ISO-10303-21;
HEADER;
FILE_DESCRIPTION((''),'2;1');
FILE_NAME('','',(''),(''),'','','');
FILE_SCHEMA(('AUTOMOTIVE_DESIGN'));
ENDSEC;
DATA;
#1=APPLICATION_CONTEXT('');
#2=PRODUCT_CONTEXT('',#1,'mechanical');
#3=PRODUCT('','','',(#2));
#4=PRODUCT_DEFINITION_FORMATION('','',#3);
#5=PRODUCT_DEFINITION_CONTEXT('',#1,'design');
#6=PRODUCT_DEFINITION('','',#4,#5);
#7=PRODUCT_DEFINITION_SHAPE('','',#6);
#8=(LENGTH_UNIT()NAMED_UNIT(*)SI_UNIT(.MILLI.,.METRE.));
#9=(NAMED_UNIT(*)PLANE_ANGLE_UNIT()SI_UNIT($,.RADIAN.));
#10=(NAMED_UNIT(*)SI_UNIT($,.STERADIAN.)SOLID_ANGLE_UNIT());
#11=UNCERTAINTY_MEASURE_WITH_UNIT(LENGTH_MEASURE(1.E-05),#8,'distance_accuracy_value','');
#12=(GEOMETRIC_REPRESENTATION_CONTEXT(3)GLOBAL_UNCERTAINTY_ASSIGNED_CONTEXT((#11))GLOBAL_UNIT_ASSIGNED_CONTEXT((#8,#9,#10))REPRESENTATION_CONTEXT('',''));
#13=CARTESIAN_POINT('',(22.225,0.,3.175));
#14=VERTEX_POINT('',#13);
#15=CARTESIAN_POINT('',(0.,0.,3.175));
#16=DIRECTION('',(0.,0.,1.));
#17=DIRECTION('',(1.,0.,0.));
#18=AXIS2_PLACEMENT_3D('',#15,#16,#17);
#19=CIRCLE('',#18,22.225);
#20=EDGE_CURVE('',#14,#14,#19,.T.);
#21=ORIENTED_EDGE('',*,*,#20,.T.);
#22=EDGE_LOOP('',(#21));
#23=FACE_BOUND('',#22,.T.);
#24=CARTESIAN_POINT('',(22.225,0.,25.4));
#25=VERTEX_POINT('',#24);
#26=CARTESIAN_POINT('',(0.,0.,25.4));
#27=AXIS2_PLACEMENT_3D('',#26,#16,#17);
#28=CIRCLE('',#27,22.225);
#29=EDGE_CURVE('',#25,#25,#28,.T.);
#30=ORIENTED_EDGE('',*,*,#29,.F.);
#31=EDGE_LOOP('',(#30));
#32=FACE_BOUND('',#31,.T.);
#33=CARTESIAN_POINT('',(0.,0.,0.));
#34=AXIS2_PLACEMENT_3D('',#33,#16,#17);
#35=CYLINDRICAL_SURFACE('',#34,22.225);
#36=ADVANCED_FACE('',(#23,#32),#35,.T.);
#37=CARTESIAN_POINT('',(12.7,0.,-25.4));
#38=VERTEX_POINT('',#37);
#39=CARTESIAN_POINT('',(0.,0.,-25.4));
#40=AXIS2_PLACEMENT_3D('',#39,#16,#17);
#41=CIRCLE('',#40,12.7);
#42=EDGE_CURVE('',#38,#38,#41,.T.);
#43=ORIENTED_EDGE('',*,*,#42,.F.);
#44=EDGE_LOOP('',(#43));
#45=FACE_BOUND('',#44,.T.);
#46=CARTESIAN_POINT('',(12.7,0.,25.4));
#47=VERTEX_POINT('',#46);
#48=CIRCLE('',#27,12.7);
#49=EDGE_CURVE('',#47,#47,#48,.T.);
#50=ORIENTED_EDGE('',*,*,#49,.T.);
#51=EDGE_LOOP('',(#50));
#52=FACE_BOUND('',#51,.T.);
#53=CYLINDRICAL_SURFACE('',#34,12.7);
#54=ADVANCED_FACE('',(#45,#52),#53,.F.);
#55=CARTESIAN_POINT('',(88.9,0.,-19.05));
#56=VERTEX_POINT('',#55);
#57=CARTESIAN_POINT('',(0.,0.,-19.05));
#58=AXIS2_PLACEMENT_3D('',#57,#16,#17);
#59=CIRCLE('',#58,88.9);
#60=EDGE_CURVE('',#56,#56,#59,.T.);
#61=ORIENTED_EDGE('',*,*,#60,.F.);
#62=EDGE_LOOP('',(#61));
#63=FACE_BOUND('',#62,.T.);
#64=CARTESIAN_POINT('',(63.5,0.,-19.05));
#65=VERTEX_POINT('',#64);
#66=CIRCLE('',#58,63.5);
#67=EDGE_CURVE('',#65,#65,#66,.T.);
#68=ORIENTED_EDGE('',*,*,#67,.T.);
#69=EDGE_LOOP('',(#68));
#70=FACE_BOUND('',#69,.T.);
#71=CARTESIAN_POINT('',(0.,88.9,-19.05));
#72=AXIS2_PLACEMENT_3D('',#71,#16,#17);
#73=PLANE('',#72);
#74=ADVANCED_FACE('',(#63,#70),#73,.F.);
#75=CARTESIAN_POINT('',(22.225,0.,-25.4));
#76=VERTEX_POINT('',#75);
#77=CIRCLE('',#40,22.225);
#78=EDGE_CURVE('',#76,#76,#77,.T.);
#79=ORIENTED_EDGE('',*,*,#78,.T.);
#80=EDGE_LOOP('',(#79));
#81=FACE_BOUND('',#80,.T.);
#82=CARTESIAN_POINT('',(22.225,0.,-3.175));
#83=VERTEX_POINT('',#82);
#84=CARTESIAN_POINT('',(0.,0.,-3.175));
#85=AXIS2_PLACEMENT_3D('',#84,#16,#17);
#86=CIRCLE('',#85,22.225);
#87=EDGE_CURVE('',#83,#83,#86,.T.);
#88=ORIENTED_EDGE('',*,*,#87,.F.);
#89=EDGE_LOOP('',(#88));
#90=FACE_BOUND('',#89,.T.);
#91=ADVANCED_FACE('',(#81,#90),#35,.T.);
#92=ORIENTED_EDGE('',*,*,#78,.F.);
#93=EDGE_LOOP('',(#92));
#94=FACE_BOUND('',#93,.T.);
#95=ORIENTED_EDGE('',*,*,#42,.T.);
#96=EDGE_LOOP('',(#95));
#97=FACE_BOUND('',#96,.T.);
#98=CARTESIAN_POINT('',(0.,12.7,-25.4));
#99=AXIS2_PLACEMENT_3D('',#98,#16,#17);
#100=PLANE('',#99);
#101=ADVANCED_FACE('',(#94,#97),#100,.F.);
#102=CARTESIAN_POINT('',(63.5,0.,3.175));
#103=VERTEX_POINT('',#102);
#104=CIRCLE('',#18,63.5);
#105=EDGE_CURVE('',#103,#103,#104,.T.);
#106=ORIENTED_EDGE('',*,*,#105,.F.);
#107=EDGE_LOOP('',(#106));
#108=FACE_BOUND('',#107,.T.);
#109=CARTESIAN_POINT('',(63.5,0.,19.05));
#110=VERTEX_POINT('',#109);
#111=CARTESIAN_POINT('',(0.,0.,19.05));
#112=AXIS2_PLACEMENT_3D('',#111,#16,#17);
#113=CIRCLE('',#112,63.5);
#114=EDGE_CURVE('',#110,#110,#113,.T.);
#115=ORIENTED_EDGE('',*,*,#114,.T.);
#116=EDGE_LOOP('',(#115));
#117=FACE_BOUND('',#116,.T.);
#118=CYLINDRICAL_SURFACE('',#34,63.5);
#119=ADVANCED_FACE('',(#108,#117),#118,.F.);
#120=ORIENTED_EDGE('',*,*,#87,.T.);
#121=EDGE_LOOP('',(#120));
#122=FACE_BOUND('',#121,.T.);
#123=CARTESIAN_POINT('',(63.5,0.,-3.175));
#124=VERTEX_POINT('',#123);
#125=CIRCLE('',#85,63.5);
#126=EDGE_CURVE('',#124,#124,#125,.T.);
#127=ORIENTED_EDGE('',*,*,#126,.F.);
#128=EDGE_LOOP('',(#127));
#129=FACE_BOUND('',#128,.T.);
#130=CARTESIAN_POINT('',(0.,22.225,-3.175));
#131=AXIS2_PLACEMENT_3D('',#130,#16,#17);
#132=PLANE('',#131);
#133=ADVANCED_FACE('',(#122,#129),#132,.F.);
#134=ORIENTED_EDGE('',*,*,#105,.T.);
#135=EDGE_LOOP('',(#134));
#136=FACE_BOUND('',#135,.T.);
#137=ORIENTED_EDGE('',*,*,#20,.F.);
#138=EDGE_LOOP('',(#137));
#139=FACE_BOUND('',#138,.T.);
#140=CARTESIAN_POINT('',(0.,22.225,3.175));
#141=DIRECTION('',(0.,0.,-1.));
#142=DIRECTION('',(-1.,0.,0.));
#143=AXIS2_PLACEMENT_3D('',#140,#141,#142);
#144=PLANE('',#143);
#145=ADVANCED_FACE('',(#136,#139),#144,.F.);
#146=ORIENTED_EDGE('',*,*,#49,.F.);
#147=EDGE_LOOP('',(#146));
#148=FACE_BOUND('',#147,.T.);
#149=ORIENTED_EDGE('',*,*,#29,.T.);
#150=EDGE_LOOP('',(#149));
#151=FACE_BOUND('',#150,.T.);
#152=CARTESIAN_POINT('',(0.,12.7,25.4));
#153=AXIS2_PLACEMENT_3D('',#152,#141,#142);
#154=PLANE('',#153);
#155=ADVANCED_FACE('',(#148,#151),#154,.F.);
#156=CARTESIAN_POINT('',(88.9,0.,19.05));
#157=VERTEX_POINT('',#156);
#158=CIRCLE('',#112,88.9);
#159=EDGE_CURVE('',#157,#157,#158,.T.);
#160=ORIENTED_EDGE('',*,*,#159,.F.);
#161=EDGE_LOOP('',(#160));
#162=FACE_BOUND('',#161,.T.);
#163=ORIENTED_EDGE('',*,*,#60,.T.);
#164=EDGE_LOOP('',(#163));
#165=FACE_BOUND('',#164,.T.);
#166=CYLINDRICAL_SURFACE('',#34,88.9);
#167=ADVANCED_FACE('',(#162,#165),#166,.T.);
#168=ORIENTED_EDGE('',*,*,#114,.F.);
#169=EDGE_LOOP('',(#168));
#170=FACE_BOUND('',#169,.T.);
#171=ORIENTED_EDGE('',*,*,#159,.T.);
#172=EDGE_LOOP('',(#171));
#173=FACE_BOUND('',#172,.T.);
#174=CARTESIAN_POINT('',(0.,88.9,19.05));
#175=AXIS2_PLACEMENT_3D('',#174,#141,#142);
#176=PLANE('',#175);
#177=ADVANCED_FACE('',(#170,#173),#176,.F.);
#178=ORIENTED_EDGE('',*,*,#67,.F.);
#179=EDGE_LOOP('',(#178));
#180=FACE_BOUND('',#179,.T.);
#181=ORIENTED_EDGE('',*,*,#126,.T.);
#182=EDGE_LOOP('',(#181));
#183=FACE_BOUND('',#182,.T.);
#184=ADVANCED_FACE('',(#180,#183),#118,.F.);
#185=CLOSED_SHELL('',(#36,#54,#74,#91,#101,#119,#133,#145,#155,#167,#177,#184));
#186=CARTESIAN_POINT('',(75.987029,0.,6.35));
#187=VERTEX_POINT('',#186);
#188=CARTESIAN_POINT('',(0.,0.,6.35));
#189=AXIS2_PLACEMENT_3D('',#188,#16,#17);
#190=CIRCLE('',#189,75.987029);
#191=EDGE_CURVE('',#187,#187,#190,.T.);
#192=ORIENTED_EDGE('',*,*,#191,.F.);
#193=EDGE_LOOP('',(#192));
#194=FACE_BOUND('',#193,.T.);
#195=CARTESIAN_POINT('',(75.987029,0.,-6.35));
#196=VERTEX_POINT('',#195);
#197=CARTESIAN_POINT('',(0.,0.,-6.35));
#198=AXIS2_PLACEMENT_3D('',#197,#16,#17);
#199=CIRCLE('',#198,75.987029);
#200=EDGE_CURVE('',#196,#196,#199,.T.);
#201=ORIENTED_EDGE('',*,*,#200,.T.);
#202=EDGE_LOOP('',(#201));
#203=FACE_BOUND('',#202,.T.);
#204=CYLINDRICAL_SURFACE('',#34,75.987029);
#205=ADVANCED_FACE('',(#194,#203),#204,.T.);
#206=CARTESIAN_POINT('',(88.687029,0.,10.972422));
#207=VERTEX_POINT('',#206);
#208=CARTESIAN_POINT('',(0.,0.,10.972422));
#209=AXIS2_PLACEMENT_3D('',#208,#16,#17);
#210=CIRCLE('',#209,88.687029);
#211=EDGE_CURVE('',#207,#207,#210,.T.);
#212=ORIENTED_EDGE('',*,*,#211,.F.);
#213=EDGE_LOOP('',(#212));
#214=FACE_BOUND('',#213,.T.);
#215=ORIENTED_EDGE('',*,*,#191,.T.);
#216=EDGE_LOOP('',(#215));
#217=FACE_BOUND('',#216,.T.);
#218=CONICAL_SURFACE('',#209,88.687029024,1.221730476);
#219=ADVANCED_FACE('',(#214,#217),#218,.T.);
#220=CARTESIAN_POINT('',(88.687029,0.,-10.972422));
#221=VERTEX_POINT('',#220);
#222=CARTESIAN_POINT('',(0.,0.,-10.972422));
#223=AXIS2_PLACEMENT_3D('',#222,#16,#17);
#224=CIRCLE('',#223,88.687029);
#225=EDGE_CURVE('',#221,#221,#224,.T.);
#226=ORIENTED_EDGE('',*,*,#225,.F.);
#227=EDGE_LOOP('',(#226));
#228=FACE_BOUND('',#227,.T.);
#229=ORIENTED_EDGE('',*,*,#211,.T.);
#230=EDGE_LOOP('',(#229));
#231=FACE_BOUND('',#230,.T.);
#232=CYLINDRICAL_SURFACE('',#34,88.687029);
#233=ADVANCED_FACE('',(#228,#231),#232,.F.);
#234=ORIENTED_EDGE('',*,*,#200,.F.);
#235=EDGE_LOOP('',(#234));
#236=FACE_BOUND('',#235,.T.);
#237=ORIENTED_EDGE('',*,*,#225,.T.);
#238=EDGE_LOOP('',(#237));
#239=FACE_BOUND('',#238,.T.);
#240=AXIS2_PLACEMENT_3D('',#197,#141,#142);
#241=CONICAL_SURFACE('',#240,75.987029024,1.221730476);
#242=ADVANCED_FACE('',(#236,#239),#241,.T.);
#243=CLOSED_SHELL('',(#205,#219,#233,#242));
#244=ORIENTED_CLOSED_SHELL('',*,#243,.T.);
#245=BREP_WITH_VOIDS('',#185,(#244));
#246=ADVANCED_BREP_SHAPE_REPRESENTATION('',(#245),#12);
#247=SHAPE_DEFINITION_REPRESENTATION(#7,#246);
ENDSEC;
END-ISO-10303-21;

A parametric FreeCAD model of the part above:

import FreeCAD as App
import Part
import Sketcher
Q = App.Units.Quantity

doc = App.newDocument("Part")
body = doc.addObject("PartDesign::Body", "Body")

sketch1 = body.newObject("Sketcher::SketchObject", "Sketch")
sketch1.AttachmentSupport = (doc.getObject("YZ_Plane"), [""])
sketch1.MapMode = "FlatFace"
sketch1.addGeometry(Part.LineSegment(App.Vector(13, 25, 0), App.Vector(13, -25, 0)), False)
sketch1.addGeometry(Part.LineSegment(App.Vector(13, -25, 0), App.Vector(22, -25, 0)), False)
sketch1.addGeometry(Part.LineSegment(App.Vector(22, -25, 0), App.Vector(22, -3, 0)), False)
sketch1.addGeometry(Part.LineSegment(App.Vector(22, -3, 0), App.Vector(64, -3, 0)), False)
sketch1.addGeometry(Part.LineSegment(App.Vector(64, -3, 0), App.Vector(64, -19, 0)), False)
sketch1.addGeometry(Part.LineSegment(App.Vector(64, -19, 0), App.Vector(89, -19, 0)), False)
sketch1.addGeometry(Part.LineSegment(App.Vector(89, -19, 0), App.Vector(89, 19, 0)), False)
sketch1.addGeometry(Part.LineSegment(App.Vector(89, 19, 0), App.Vector(64, 19, 0)), False)
sketch1.addGeometry(Part.LineSegment(App.Vector(64, 19, 0), App.Vector(64, 3, 0)), False)
sketch1.addGeometry(Part.LineSegment(App.Vector(64, 3, 0), App.Vector(22, 3, 0)), False)
sketch1.addGeometry(Part.LineSegment(App.Vector(22, 3, 0), App.Vector(22, 25, 0)), False)
sketch1.addGeometry(Part.LineSegment(App.Vector(22, 25, 0), App.Vector(13, 25, 0)), False)
sketch1.addConstraint(Sketcher.Constraint("Coincident", 0, 2, 1, 1))
sketch1.addConstraint(Sketcher.Constraint("Coincident", 1, 2, 2, 1))
sketch1.addConstraint(Sketcher.Constraint("Coincident", 2, 2, 3, 1))
sketch1.addConstraint(Sketcher.Constraint("Coincident", 3, 2, 4, 1))
sketch1.addConstraint(Sketcher.Constraint("Coincident", 4, 2, 5, 1))
sketch1.addConstraint(Sketcher.Constraint("Coincident", 5, 2, 6, 1))
sketch1.addConstraint(Sketcher.Constraint("Coincident", 6, 2, 7, 1))
sketch1.addConstraint(Sketcher.Constraint("Coincident", 7, 2, 8, 1))
sketch1.addConstraint(Sketcher.Constraint("Coincident", 8, 2, 9, 1))
sketch1.addConstraint(Sketcher.Constraint("Coincident", 9, 2, 10, 1))
sketch1.addConstraint(Sketcher.Constraint("Coincident", 10, 2, 11, 1))
sketch1.addConstraint(Sketcher.Constraint("Coincident", 11, 2, 0, 1))
sketch1.addConstraint(Sketcher.Constraint("Vertical", 0))
sketch1.addConstraint(Sketcher.Constraint("Horizontal", 1))
sketch1.addConstraint(Sketcher.Constraint("Vertical", 2))
sketch1.addConstraint(Sketcher.Constraint("Horizontal", 3))
sketch1.addConstraint(Sketcher.Constraint("Vertical", 4))
sketch1.addConstraint(Sketcher.Constraint("Horizontal", 5))
sketch1.addConstraint(Sketcher.Constraint("Vertical", 6))
sketch1.addConstraint(Sketcher.Constraint("Horizontal", 7))
sketch1.addConstraint(Sketcher.Constraint("Vertical", 8))
sketch1.addConstraint(Sketcher.Constraint("Horizontal", 9))
sketch1.addConstraint(Sketcher.Constraint("Vertical", 10))
sketch1.addConstraint(Sketcher.Constraint("Horizontal", 11))
sketch1.addConstraint(Sketcher.Constraint("Symmetric", 4, 2, 7, 2, -1))
sketch1.addConstraint(Sketcher.Constraint("Symmetric", 2, 2, 9, 2, -1))
sketch1.addConstraint(Sketcher.Constraint("Equal", 2, 10))
sketch1.addConstraint(Sketcher.Constraint("DistanceX", 5, 1, 5, 2, Q("1 in")))
sketch1.addConstraint(Sketcher.Constraint("DistanceY", 0, 2, 0, 1, Q("2 in")))
sketch1.addConstraint(Sketcher.Constraint("DistanceY", 6, 1, 6, 2, Q("1.5 in")))
sketch1.addConstraint(Sketcher.Constraint("DistanceX", 0, 2, 3, 2, Q("2 in")))
sketch1.addConstraint(Sketcher.Constraint("DistanceX", -1, 1, 0, 2, Q("0.5 in")))
sketch1.addConstraint(Sketcher.Constraint("DistanceX", 1, 1, 1, 2, Q("0.375 in")))
sketch1.addConstraint(Sketcher.Constraint("DistanceY", 2, 1, 2, 2, Q("0.875 in")))
revolution = body.newObject("PartDesign::Revolution", "Revolution")
revolution.Profile = sketch1
revolution.ReferenceAxis = (sketch1, ["V_Axis"])
revolution.Angle = 360

sketch2 = body.newObject("Sketcher::SketchObject", "Sketch001")
sketch2.AttachmentSupport = (doc.getObject("YZ_Plane"), [""])
sketch2.MapMode = "FlatFace"
sketch2.addGeometry(Part.LineSegment(App.Vector(89, 11, 0), App.Vector(76, 6, 0)), False)
sketch2.addGeometry(Part.LineSegment(App.Vector(76, 6, 0), App.Vector(76, -6, 0)), False)
sketch2.addGeometry(Part.LineSegment(App.Vector(76, -6, 0), App.Vector(89, -11, 0)), False)
sketch2.addGeometry(Part.LineSegment(App.Vector(89, -11, 0), App.Vector(89, 11, 0)), False)
sketch2.addConstraint(Sketcher.Constraint("Coincident", 0, 2, 1, 1))
sketch2.addConstraint(Sketcher.Constraint("Coincident", 1, 2, 2, 1))
sketch2.addConstraint(Sketcher.Constraint("Coincident", 2, 2, 3, 1))
sketch2.addConstraint(Sketcher.Constraint("Coincident", 3, 2, 0, 1))
sketch2.addConstraint(Sketcher.Constraint("Vertical", 1))
sketch2.addConstraint(Sketcher.Constraint("Vertical", 3))
sketch2.addConstraint(Sketcher.Constraint("Equal", 0, 2))
sketch2.addConstraint(Sketcher.Constraint("DistanceY", 1, 2, 1, 1, Q("0.5 in")))
sketch2.addConstraint(Sketcher.Constraint("Angle", 0, Q("-160 deg")))
sketch2.addConstraint(Sketcher.Constraint("DistanceX", 1, 2, 2, 2, Q("0.5 in")))
sketch2.addConstraint(Sketcher.Constraint("DistanceY", -1, 1, 0, 2, Q("0.25 in")))
sketch2.addConstraint(Sketcher.Constraint("DistanceX", -1, 1, 0, 2, 75.987029))
groove = body.newObject("PartDesign::Groove", "Groove")
groove.Profile = sketch2
groove.ReferenceAxis = (sketch2, ["V_Axis"])
groove.Angle = 360

doc.recompute()
